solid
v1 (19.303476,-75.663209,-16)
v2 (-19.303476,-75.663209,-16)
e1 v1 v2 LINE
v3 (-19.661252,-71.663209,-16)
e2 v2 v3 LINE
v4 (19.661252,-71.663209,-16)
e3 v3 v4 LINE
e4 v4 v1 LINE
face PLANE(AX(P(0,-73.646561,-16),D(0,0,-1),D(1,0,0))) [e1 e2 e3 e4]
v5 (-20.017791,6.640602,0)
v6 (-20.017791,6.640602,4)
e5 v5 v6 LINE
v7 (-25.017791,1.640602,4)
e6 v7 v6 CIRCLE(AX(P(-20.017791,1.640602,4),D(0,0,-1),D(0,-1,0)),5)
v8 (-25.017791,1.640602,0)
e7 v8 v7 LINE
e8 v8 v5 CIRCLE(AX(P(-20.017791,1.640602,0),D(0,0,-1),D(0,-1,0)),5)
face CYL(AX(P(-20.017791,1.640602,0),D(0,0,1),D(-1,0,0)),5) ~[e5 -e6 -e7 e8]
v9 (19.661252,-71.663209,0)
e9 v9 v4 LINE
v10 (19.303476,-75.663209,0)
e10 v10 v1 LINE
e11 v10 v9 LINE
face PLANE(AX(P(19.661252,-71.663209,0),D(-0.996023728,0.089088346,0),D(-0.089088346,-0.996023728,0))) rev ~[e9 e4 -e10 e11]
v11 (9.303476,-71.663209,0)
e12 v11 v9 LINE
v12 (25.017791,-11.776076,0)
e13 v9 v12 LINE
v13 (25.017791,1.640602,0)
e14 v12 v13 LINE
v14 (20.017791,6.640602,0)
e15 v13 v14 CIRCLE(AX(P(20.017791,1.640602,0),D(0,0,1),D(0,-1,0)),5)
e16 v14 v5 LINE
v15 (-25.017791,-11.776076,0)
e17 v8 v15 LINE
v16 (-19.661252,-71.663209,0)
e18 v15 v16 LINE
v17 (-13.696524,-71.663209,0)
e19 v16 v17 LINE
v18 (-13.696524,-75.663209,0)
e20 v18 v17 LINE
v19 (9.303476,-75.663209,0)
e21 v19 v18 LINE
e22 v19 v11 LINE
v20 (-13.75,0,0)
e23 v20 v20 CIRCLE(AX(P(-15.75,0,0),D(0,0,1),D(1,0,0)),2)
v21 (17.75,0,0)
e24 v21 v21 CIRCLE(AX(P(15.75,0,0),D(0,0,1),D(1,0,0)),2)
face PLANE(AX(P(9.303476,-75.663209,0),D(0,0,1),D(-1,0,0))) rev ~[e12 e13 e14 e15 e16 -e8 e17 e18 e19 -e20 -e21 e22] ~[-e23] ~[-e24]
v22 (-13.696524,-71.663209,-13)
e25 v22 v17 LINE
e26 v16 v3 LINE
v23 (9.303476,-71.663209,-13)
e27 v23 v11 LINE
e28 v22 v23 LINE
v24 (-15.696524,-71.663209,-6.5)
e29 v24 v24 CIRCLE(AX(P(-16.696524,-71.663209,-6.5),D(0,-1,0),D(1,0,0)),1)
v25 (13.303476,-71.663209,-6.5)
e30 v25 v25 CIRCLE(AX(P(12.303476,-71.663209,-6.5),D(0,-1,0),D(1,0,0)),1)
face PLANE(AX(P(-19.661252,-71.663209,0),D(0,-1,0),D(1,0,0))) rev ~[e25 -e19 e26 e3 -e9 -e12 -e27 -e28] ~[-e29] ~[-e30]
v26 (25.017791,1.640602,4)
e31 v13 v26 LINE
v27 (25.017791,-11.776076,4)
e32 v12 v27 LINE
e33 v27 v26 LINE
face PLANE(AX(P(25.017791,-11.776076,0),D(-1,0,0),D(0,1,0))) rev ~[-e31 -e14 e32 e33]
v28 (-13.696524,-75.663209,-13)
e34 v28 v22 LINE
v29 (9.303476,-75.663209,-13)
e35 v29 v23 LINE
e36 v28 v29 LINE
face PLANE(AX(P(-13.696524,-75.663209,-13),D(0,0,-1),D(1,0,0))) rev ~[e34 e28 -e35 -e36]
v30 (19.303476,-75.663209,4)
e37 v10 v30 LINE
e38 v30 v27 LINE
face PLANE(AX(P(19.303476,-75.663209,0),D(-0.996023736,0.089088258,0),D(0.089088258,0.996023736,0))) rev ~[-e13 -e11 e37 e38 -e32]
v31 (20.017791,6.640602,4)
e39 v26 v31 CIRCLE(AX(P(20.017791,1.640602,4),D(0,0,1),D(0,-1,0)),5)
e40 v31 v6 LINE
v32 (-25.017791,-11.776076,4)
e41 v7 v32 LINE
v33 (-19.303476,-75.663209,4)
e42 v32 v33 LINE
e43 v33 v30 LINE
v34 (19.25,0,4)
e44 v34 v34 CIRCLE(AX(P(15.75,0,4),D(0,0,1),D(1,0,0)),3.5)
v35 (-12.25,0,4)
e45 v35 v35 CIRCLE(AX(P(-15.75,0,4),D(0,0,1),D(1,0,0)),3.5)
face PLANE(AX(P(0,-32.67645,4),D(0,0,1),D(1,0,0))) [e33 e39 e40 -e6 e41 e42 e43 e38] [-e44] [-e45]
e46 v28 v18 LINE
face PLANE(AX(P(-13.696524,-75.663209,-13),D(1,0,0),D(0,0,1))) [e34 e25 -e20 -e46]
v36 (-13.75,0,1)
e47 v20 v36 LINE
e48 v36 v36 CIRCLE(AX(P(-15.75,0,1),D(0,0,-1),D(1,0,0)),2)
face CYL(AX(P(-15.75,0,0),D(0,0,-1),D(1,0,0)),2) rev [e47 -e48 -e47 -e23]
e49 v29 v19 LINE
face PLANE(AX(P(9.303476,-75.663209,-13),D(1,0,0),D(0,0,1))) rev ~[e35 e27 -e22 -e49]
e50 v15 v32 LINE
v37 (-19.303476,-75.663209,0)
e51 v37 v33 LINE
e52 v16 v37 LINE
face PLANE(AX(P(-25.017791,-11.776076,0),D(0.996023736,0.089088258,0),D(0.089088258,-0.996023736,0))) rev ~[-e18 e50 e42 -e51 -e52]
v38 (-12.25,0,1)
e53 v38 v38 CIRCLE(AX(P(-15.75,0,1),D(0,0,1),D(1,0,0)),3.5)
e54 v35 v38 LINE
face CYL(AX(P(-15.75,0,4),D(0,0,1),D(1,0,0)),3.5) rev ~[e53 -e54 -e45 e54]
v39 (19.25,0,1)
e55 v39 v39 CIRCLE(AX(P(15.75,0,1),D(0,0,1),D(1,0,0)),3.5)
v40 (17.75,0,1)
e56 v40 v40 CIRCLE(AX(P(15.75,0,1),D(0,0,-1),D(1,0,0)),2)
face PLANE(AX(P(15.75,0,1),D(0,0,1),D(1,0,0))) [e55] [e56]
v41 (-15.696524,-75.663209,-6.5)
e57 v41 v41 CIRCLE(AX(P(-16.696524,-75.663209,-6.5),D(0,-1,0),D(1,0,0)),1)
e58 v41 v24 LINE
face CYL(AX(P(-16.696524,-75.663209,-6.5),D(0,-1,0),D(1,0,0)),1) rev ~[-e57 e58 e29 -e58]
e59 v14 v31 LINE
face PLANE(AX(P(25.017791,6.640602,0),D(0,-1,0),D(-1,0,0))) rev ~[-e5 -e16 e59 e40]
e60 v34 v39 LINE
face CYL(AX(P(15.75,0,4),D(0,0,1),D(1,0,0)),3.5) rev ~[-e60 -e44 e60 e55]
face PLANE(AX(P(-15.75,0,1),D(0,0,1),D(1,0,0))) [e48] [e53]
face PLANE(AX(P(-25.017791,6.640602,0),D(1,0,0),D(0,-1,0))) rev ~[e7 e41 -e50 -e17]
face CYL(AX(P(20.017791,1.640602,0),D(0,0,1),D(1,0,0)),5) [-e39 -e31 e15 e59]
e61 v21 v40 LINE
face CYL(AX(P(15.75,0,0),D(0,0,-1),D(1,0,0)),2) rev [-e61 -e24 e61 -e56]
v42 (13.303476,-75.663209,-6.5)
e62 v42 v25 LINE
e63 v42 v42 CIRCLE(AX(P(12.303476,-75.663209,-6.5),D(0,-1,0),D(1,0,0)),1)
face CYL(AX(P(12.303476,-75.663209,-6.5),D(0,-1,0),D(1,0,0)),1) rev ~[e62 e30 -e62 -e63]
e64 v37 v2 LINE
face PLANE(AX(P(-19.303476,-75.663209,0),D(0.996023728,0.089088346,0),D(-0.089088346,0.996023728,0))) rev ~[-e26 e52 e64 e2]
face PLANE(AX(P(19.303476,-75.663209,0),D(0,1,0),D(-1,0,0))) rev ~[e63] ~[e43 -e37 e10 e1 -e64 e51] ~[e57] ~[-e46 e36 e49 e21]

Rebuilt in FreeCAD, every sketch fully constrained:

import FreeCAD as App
import Part
import Sketcher

V = App.Vector


def edges_at(feature, points):
    """Names of the edges that pass closest to the given points."""
    edges = feature.Shape.Edges
    near = lambda p: min(range(len(edges)), key=lambda i: edges[i].distToShape(Part.Vertex(*p))[0])
    return sorted({f"Edge{near(p) + 1}" for p in points})


def add_polygon(sketch, points):
    """Adds a closed chain of lines whose ends are joined by coincident constraints."""
    first, n = sketch.GeometryCount, len(points)
    for a, b in zip(points, points[1:] + points[:1]):
        sketch.addGeometry(Part.LineSegment(App.Vector(*a, 0), App.Vector(*b, 0)), False)
    for i in range(n):
        sketch.addConstraint(Sketcher.Constraint("Coincident", first + i, 2, first + (i + 1) % n, 1))

doc = App.newDocument("Part")
params = doc.addObject("Spreadsheet::Sheet", "Params")
for row, (alias, value) in enumerate([
    ("sketch1_diameter", "4 mm"),
    ("pad1_length", "4 mm"),
    ("sketch2_diameter", "7 mm"),
    ("pocket1_length", "3 mm"),
    ("pad2_length", "16 mm"),
    ("sketch4_diameter", "2 mm"),
    ("sketch4_width", "23 mm"),
    ("sketch4_height", "13 mm"),
    ("pocket2_length", "25 mm"),
    ("fillet_radius", "5 mm"),
], start=1):
    params.set(f"A{row}", alias)
    params.set(f"B{row}", "=" + value)
    params.setAlias(f"B{row}", alias)

body = doc.addObject("PartDesign::Body", "Body")

sketch1 = doc.addObject("Sketcher::SketchObject", "Sketch")
body.addObject(sketch1)
sketch1.AttachmentSupport = (doc.XY_Plane, [""])
sketch1.MapMode = "FlatFace"
add_polygon(sketch1, [(-25, 6.6), (-25, -11.8), (-19.3, -75.7), (19.3, -75.7), (25, -11.8), (25, 6.6)])
sketch1.addGeometry(Part.Circle(V(-15.8, 0, 0), V(0, 0, 1), 2), False)
sketch1.addGeometry(Part.Circle(V(15.8, 0, 0), V(0, 0, 1), 2), False)
sketch1.addConstraint(Sketcher.Constraint("Vertical", 0))
sketch1.addConstraint(Sketcher.Constraint("Horizontal", 2))
sketch1.addConstraint(Sketcher.Constraint("Vertical", 4))
sketch1.addConstraint(Sketcher.Constraint("Horizontal", 5))
sketch1.addConstraint(Sketcher.Constraint("Equal", 6, 7))
sketch1.addConstraint(Sketcher.Constraint("Symmetric", 6, 3, 7, 3, -1, 1))
sketch1.addConstraint(Sketcher.Constraint("Symmetric", 0, 2, 3, 2, -2))
sketch1.addConstraint(Sketcher.Constraint("PointOnObject", 6, 3, -1))
sketch1.addConstraint(Sketcher.Constraint("Equal", 1, 3))
sketch1.addConstraint(Sketcher.Constraint("Diameter", 6, 4.0))
sketch1.addConstraint(Sketcher.Constraint("DistanceX", 6, 3, 7, 3, 31.5))
sketch1.addConstraint(Sketcher.Constraint("DistanceX", 5, 2, 5, 1, 50.035582))
sketch1.addConstraint(Sketcher.Constraint("DistanceY", 0, 2, 0, 1, 18.416678))
sketch1.addConstraint(Sketcher.Constraint("Distance", 1, 64.142179))
sketch1.addConstraint(Sketcher.Constraint("DistanceX", 2, 1, 2, 2, 38.606952))
sketch1.addConstraint(Sketcher.Constraint("DistanceY", 1, 2, -1, 1, 75.663209))
sketch1.setExpression("Constraints[15]", "Params.sketch1_diameter")
pad1 = doc.addObject("PartDesign::Pad", "Pad")
body.addObject(pad1)
pad1.Profile = sketch1
pad1.setExpression("Length", "Params.pad1_length")

sketch2 = doc.addObject("Sketcher::SketchObject", "Sketch001")
body.addObject(sketch2)
sketch2.AttachmentSupport = (doc.XY_Plane, [""])
sketch2.MapMode = "FlatFace"
sketch2.AttachmentOffset = App.Placement(V(0, 0, 4), App.Rotation())
sketch2.addGeometry(Part.Circle(V(-15.8, 0, 0), V(0, 0, 1), 3.5), False)
sketch2.addGeometry(Part.Circle(V(15.8, 0, 0), V(0, 0, 1), 3.5), False)
sketch2.addConstraint(Sketcher.Constraint("Equal", 0, 1))
sketch2.addConstraint(Sketcher.Constraint("Symmetric", 0, 3, 1, 3, -1, 1))
sketch2.addConstraint(Sketcher.Constraint("PointOnObject", 0, 3, -1))
sketch2.addConstraint(Sketcher.Constraint("Diameter", 0, 7.0))
sketch2.addConstraint(Sketcher.Constraint("DistanceX", 0, 3, 1, 3, 31.5))
sketch2.setExpression("Constraints[3]", "Params.sketch2_diameter")
pocket1 = doc.addObject("PartDesign::Pocket", "Pocket")
body.addObject(pocket1)
pocket1.Profile = sketch2
pocket1.setExpression("Length", "Params.pocket1_length")

sketch3 = doc.addObject("Sketcher::SketchObject", "Sketch002")
body.addObject(sketch3)
sketch3.AttachmentSupport = (doc.XY_Plane, [""])
sketch3.MapMode = "FlatFace"
add_polygon(sketch3, [(19.3, -75.7), (-19.3, -75.7), (-19.7, -71.7), (19.7, -71.7)])
sketch3.addConstraint(Sketcher.Constraint("Horizontal", 0))
sketch3.addConstraint(Sketcher.Constraint("Horizontal", 2))
sketch3.addConstraint(Sketcher.Constraint("Equal", 1, 3))
sketch3.addConstraint(Sketcher.Constraint("DistanceY", 0, 2, 1, 2, 4.0))
sketch3.addConstraint(Sketcher.Constraint("Distance", 1, 4.015969))
sketch3.addConstraint(Sketcher.Constraint("DistanceX", 0, 2, 0, 1, 38.606952))
sketch3.addConstraint(Sketcher.Constraint("DistanceY", 0, 2, -1, 1, 75.663209))
sketch3.addConstraint(Sketcher.Constraint("DistanceX", 0, 2, -1, 1, 19.303476))
pad2 = doc.addObject("PartDesign::Pad", "Pad001")
body.addObject(pad2)
pad2.Profile = sketch3
pad2.setExpression("Length", "Params.pad2_length")
pad2.Reversed = True

sketch4 = doc.addObject("Sketcher::SketchObject", "Sketch003")
body.addObject(sketch4)
sketch4.AttachmentSupport = (doc.XZ_Plane, [""])
sketch4.MapMode = "FlatFace"
sketch4.AttachmentOffset = App.Placement(V(0, 0, 75.663209), App.Rotation())
add_polygon(sketch4, [(9.3, -13), (9.3, 0), (-13.7, 0), (-13.7, -13)])
sketch4.addGeometry(Part.Circle(V(-16.7, -6.5, 0), V(0, 0, 1), 1), False)
sketch4.addGeometry(Part.Circle(V(12.3, -6.5, 0), V(0, 0, 1), 1), False)
sketch4.addConstraint(Sketcher.Constraint("Vertical", 0))
sketch4.addConstraint(Sketcher.Constraint("Horizontal", 1))
sketch4.addConstraint(Sketcher.Constraint("Vertical", 2))
sketch4.addConstraint(Sketcher.Constraint("Horizontal", 3))
sketch4.addConstraint(Sketcher.Constraint("Equal", 4, 5))
sketch4.addConstraint(Sketcher.Constraint("PointOnObject", 0, 2, -1))
sketch4.addConstraint(Sketcher.Constraint("Horizontal", 4, 3, 5, 3))
sketch4.addConstraint(Sketcher.Constraint("Diameter", 4, 2.0))
sketch4.addConstraint(Sketcher.Constraint("DistanceX", 1, 2, 1, 1, 23.0))
sketch4.addConstraint(Sketcher.Constraint("DistanceY", 0, 1, 0, 2, 13.0))
sketch4.addConstraint(Sketcher.Constraint("DistanceX", 4, 3, 5, 3, 29.0))
sketch4.addConstraint(Sketcher.Constraint("DistanceX", 0, 2, 5, 3, 3.0))
sketch4.addConstraint(Sketcher.Constraint("DistanceY", 4, 3, -1, 1, 6.5))
sketch4.addConstraint(Sketcher.Constraint("DistanceX", 4, 3, -1, 1, 16.696524))
sketch4.setExpression("Constraints[11]", "Params.sketch4_diameter")
sketch4.setExpression("Constraints[12]", "Params.sketch4_width")
sketch4.setExpression("Constraints[13]", "Params.sketch4_height")
pocket2 = doc.addObject("PartDesign::Pocket", "Pocket001")
body.addObject(pocket2)
pocket2.Profile = sketch4
pocket2.setExpression("Length", "Params.pocket2_length")
doc.recompute()

fillet = doc.addObject("PartDesign::Fillet", "Fillet")
body.addObject(fillet)
fillet.Base = (pocket2, edges_at(pocket2, [(25.018, 6.641, 2), (-25.018, 6.641, 2)]))
fillet.setExpression("Radius", "Params.fillet_radius")

doc.recompute()
